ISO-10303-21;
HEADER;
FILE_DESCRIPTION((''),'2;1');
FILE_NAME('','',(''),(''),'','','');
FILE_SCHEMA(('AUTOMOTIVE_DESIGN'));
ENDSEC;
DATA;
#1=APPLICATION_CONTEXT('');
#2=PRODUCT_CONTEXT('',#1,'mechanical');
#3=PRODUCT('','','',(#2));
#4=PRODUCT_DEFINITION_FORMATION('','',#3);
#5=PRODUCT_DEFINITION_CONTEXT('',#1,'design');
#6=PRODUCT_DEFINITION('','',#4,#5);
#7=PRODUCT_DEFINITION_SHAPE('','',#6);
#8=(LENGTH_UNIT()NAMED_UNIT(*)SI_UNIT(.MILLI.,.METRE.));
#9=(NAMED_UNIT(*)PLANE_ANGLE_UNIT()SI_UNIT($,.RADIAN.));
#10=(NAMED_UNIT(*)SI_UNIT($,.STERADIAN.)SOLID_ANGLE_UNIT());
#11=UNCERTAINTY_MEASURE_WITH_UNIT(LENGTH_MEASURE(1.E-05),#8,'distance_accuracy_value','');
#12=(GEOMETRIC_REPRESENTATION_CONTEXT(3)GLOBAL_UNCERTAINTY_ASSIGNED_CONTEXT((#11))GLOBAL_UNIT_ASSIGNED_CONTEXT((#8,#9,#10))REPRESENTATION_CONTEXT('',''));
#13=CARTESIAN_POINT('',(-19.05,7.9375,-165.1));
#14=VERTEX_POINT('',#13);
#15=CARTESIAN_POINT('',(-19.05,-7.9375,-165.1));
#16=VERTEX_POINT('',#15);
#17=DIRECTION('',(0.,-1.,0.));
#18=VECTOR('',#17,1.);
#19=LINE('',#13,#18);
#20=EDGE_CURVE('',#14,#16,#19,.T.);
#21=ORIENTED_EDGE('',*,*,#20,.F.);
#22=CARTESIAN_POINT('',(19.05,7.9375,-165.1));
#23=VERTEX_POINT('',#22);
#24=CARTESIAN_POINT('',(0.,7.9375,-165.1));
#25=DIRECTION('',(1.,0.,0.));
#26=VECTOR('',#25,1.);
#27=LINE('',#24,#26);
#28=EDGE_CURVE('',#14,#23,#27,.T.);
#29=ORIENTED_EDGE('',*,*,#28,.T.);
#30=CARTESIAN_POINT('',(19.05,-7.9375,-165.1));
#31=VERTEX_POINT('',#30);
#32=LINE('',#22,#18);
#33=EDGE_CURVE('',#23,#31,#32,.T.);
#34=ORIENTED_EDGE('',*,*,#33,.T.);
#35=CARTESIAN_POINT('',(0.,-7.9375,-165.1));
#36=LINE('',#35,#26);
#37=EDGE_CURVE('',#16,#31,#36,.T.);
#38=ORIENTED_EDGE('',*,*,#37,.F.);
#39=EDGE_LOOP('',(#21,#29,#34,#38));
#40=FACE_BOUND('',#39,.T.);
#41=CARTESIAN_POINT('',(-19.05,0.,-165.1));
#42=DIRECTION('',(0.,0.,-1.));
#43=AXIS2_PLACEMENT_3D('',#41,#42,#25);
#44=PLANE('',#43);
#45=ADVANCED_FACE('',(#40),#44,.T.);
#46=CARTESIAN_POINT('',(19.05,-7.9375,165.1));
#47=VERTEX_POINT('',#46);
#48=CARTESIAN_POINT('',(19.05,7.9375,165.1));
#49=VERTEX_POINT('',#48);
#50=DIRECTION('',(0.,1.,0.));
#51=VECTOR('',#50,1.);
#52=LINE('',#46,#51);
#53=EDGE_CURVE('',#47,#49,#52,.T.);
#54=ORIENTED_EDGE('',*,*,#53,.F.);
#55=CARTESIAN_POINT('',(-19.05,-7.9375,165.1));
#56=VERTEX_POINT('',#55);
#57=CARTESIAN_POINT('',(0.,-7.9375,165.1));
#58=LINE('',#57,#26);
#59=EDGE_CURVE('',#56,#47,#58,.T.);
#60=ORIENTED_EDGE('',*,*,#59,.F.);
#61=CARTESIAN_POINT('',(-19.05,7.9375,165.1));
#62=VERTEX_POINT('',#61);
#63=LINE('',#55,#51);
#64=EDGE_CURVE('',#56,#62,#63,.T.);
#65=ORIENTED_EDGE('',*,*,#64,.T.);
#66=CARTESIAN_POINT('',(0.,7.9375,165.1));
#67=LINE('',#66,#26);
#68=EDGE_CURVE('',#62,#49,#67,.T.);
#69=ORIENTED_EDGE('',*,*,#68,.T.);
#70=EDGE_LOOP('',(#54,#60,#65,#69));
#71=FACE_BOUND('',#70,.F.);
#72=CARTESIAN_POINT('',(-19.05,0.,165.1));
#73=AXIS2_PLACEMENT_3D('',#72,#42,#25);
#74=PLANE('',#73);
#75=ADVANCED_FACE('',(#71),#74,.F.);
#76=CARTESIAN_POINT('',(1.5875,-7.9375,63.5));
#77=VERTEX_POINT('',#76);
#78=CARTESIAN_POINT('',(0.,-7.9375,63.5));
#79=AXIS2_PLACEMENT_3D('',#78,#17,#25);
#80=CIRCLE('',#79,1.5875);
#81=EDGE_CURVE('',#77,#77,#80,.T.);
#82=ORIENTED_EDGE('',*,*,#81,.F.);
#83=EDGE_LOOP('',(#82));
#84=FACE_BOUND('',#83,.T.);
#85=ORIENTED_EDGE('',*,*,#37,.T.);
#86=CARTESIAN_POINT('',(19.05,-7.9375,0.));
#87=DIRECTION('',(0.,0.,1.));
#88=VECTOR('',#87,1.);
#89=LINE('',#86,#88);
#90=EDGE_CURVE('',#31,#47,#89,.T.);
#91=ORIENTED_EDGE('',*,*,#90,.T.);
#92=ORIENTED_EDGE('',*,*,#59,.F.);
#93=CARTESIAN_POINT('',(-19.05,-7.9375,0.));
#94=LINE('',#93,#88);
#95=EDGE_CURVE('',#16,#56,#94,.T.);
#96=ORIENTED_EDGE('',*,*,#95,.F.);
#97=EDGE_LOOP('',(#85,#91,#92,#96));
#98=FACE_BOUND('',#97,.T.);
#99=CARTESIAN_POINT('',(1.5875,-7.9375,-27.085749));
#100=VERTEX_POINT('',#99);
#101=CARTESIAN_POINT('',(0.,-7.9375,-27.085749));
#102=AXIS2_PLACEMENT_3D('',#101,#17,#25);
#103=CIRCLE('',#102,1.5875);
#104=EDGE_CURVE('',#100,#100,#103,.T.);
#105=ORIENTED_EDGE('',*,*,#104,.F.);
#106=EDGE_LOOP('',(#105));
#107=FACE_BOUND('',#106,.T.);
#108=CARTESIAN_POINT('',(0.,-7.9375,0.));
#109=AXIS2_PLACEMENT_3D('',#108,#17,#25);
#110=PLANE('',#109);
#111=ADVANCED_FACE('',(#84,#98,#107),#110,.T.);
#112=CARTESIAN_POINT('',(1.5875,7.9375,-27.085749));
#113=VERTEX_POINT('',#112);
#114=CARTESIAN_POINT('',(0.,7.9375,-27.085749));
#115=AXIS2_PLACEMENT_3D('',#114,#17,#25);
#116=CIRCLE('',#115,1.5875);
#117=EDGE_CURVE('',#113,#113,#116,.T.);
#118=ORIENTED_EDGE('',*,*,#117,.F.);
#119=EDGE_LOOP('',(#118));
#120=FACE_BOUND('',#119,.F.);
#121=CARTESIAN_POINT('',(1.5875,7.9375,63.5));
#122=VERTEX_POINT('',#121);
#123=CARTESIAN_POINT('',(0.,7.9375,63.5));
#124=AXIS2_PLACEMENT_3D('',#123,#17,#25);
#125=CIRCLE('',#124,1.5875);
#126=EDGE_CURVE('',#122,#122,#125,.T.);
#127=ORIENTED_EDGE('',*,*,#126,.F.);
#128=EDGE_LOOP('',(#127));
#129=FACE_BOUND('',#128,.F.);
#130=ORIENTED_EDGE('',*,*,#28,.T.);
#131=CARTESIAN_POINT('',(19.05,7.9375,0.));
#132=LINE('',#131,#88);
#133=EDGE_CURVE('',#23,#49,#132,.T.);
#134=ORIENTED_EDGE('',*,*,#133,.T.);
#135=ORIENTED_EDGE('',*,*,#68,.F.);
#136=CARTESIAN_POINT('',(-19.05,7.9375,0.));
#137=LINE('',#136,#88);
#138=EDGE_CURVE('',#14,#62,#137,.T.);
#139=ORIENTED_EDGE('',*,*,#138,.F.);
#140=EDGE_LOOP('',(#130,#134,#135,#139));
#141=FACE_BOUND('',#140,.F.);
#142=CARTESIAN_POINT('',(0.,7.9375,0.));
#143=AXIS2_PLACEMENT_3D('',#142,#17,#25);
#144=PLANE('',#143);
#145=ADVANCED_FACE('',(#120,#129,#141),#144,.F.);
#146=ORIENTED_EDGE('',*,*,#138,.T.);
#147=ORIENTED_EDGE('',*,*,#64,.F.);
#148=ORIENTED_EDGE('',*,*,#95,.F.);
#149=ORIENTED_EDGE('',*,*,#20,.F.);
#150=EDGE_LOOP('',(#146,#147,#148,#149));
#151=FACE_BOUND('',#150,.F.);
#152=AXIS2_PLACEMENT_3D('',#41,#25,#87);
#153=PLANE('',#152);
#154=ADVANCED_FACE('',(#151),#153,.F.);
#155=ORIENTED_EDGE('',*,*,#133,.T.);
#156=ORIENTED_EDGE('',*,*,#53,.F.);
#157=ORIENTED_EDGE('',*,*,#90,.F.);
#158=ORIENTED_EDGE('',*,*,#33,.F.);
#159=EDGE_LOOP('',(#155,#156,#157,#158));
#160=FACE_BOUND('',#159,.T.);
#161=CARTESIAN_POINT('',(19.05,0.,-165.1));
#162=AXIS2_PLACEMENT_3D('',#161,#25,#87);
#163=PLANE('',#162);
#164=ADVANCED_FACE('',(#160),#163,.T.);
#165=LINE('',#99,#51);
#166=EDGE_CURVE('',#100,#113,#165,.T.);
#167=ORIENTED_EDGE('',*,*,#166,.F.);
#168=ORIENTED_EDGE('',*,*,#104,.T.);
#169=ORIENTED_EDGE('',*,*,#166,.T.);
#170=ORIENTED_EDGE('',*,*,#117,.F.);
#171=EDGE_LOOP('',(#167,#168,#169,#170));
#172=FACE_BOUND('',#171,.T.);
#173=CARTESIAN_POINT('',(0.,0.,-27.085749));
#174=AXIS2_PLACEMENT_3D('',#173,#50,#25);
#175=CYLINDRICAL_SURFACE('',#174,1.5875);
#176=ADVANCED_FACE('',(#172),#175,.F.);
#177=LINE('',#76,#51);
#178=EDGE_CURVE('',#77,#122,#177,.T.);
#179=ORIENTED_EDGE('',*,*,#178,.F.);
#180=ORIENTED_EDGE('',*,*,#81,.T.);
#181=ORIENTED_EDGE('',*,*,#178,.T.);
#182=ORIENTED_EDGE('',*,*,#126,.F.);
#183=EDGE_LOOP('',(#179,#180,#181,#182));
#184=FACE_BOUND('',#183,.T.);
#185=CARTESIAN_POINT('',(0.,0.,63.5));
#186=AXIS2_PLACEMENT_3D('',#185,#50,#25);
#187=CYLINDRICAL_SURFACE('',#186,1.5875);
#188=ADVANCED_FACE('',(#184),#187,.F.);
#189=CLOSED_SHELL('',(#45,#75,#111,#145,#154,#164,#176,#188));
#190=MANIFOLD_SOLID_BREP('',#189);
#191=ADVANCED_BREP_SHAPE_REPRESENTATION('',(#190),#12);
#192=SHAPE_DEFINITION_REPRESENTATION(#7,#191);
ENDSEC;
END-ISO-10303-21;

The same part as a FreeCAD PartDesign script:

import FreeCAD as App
import Part
import Sketcher
from FreeCAD import Vector
Q = App.Units.Quantity

doc = App.newDocument("Part")
body = doc.addObject("PartDesign::Body", "Body")

sketch1 = doc.addObject("Sketcher::SketchObject", "Sketch")
body.addObject(sketch1)
sketch1.AttachmentSupport = (doc.XZ_Plane, [""])
sketch1.MapMode = "FlatFace"
sketch1.addGeometry([
    Part.LineSegment(Vector(-19.05, 165.1, 0), Vector(-19.05, -165.1, 0)),
    Part.LineSegment(Vector(-19.05, -165.1, 0), Vector(19.05, -165.1, 0)),
    Part.LineSegment(Vector(19.05, -165.1, 0), Vector(19.05, 165.1, 0)),
    Part.LineSegment(Vector(19.05, 165.1, 0), Vector(-19.05, 165.1, 0)),
    Part.Circle(Vector(0, -27.085749, 0), Vector(0, 0, 1), 1.5875),
    Part.Circle(Vector(0, 63.5, 0), Vector(0, 0, 1), 1.5875),
], False)
sketch1.addConstraint([
    Sketcher.Constraint("Coincident", 0, 2, 1, 1),
    Sketcher.Constraint("Coincident", 1, 2, 2, 1),
    Sketcher.Constraint("Coincident", 2, 2, 3, 1),
    Sketcher.Constraint("Coincident", 3, 2, 0, 1),
    Sketcher.Constraint("Vertical", 0),
    Sketcher.Constraint("Horizontal", 1),
    Sketcher.Constraint("Vertical", 2),
    Sketcher.Constraint("Horizontal", 3),
    Sketcher.Constraint("Equal", 4, 5),
    Sketcher.Constraint("Symmetric", 0, 2, 2, 2, -1, 1),
    Sketcher.Constraint("PointOnObject", 4, 3, -2),
    Sketcher.Constraint("PointOnObject", 5, 3, -2),
    Sketcher.Constraint("DistanceY", 0, 2, 0, 1, Q("13 in")),
    Sketcher.Constraint("Diameter", 4, Q("0.125 in")),
    Sketcher.Constraint("DistanceX", 1, 1, 1, 2, Q("1.5 in")),
    Sketcher.Constraint("DistanceY", 0, 2, 5, 3, Q("9 in")),
    Sketcher.Constraint("DistanceY", 4, 3, -1, 1, Q("27.085749 mm")),
])
pad1 = doc.addObject("PartDesign::Pad", "Pad")
body.addObject(pad1)
pad1.Profile = sketch1
pad1.Length = Q("0.625 in")
pad1.Midplane = True

doc.recompute()
